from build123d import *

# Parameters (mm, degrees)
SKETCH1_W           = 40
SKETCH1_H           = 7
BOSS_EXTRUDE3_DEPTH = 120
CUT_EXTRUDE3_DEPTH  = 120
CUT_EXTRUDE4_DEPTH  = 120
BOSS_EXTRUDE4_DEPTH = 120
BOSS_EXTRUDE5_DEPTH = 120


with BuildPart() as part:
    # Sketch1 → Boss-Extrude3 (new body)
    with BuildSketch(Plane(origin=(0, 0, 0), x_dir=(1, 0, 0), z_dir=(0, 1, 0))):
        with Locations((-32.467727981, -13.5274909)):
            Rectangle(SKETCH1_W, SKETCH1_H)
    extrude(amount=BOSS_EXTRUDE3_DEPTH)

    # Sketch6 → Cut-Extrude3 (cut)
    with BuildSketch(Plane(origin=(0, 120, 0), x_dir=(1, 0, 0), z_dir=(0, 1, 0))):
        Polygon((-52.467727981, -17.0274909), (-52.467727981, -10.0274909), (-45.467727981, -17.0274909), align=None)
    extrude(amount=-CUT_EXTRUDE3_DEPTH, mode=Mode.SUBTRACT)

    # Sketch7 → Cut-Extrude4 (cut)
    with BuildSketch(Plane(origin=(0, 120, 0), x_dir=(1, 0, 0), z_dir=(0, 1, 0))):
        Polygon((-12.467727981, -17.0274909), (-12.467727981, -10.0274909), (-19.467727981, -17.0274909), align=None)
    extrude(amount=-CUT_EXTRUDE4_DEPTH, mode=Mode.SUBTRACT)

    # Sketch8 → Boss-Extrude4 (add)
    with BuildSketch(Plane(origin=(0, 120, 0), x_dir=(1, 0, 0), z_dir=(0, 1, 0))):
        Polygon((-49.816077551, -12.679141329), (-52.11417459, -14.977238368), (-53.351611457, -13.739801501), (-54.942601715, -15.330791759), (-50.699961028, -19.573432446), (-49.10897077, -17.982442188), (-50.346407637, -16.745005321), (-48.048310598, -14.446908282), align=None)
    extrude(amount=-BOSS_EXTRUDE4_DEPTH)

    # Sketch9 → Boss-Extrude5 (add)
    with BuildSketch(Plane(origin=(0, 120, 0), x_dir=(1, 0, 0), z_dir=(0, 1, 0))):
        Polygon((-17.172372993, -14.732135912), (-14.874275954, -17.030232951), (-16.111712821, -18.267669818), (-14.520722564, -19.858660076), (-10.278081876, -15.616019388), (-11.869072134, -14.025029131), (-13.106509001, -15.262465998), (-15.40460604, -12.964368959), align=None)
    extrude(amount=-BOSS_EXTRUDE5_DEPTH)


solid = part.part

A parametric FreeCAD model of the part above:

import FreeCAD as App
import Part
import Sketcher
from FreeCAD import Vector
Q = App.Units.Quantity


def add_polygon(sketch, points):
    """Adds a closed chain of lines whose ends are joined by coincident constraints."""
    first, n = sketch.GeometryCount, len(points)
    for a, b in zip(points, points[1:] + points[:1]):
        sketch.addGeometry(Part.LineSegment(App.Vector(*a, 0), App.Vector(*b, 0)), False)
    for i in range(n):
        sketch.addConstraint(Sketcher.Constraint("Coincident", first + i, 2, first + (i + 1) % n, 1))

doc = App.newDocument("Part")
body = doc.addObject("PartDesign::Body", "Body")

sketch1 = doc.addObject("Sketcher::SketchObject", "Sketch")
body.addObject(sketch1)
sketch1.AttachmentSupport = (doc.XZ_Plane, [""])
sketch1.MapMode = "FlatFace"
add_polygon(sketch1, [(-52, 10), (-52, 17), (-12, 17), (-12, 10)])
sketch1.addConstraint([
    Sketcher.Constraint("Vertical", 0),
    Sketcher.Constraint("Horizontal", 1),
    Sketcher.Constraint("Vertical", 2),
    Sketcher.Constraint("Horizontal", 3),
    Sketcher.Constraint("DistanceX", 1, 1, 1, 2, Q("40 mm")),
    Sketcher.Constraint("DistanceY", 0, 1, 0, 2, Q("7 mm")),
    Sketcher.Constraint("DistanceY", -1, 1, 0, 2, Q("17.027491 mm")),
    Sketcher.Constraint("DistanceX", 0, 2, -1, 1, Q("52.467728 mm")),
])
pad1 = doc.addObject("PartDesign::Pad", "Pad")
body.addObject(pad1)
pad1.Profile = sketch1
pad1.Length = 120
pad1.Reversed = True

sketch2 = doc.addObject("Sketcher::SketchObject", "Sketch001")
body.addObject(sketch2)
sketch2.AttachmentSupport = (doc.XZ_Plane, [""])
sketch2.MapMode = "FlatFace"
sketch2.AttachmentOffset = App.Placement(Vector(0, 0, -120), App.Rotation())
add_polygon(sketch2, [(-52, 10), (-52, 17), (-45, 17)])
sketch2.addConstraint([
    Sketcher.Constraint("Vertical", 0),
    Sketcher.Constraint("Horizontal", 1),
    Sketcher.Constraint("Equal", 1, 0),
    Sketcher.Constraint("DistanceX", 1, 1, 1, 2, Q("7 mm")),
    Sketcher.Constraint("DistanceY", -1, 1, 0, 2, Q("17.027491 mm")),
    Sketcher.Constraint("DistanceX", 0, 2, -1, 1, Q("52.467728 mm")),
])
pocket1 = doc.addObject("PartDesign::Pocket", "Pocket")
body.addObject(pocket1)
pocket1.Profile = sketch2
pocket1.Length = 120
pocket1.Reversed = True

sketch3 = doc.addObject("Sketcher::SketchObject", "Sketch002")
body.addObject(sketch3)
sketch3.AttachmentSupport = (doc.XZ_Plane, [""])
sketch3.MapMode = "FlatFace"
sketch3.AttachmentOffset = App.Placement(Vector(0, 0, -120), App.Rotation())
add_polygon(sketch3, [(-12, 17), (-12, 10), (-19, 17)])
sketch3.addConstraint([
    Sketcher.Constraint("Vertical", 0),
    Sketcher.Constraint("Horizontal", 2),
    Sketcher.Constraint("Equal", 2, 0),
    Sketcher.Constraint("DistanceX", 2, 1, 2, 2, Q("7 mm")),
    Sketcher.Constraint("DistanceY", -1, 1, 0, 2, Q("10.027491 mm")),
    Sketcher.Constraint("DistanceX", 0, 2, -1, 1, Q("12.467728 mm")),
])
pocket2 = doc.addObject("PartDesign::Pocket", "Pocket001")
body.addObject(pocket2)
pocket2.Profile = sketch3
pocket2.Length = 120
pocket2.Reversed = True

sketch4 = doc.addObject("Sketcher::SketchObject", "Sketch003")
body.addObject(sketch4)
sketch4.AttachmentSupport = (doc.XZ_Plane, [""])
sketch4.MapMode = "FlatFace"
sketch4.AttachmentOffset = App.Placement(Vector(0, 0, -120), App.Rotation())
add_polygon(sketch4, [(-49.8, 12.7), (-52.1, 15), (-53.4, 13.7), (-54.9, 15.3), (-50.7, 19.6), (-49.1, 18), (-50.3, 16.7), (-48, 14.4)])
sketch4.addConstraint([
    Sketcher.Constraint("Perpendicular", 0, 1),
    Sketcher.Constraint("Perpendicular", 1, 2),
    Sketcher.Constraint("Perpendicular", 2, 3),
    Sketcher.Constraint("Perpendicular", 3, 4),
    Sketcher.Constraint("Perpendicular", 4, 5),
    Sketcher.Constraint("Perpendicular", 5, 6),
    Sketcher.Constraint("Perpendicular", 6, 7),
    Sketcher.Constraint("Equal", 2, 4),
    Sketcher.Constraint("Equal", 1, 5),
    Sketcher.Constraint("Angle", 0, Q("135 deg")),
    Sketcher.Constraint("Distance", 3, Q("6 mm")),
    Sketcher.Constraint("Distance", 7, Q("2.5 mm")),
    Sketcher.Constraint("Distance", 0, Q("3.25 mm")),
    Sketcher.Constraint("Distance", 2, Q("2.25 mm")),
    Sketcher.Constraint("DistanceY", -1, 1, 1, 2, Q("13.739802 mm")),
    Sketcher.Constraint("DistanceX", 2, 2, -1, 1, Q("54.942602 mm")),
])
pad2 = doc.addObject("PartDesign::Pad", "Pad001")
body.addObject(pad2)
pad2.Profile = sketch4
pad2.Length = 120

sketch5 = doc.addObject("Sketcher::SketchObject", "Sketch004")
body.addObject(sketch5)
sketch5.AttachmentSupport = (doc.XZ_Plane, [""])
sketch5.MapMode = "FlatFace"
sketch5.AttachmentOffset = App.Placement(Vector(0, 0, -120), App.Rotation())
add_polygon(sketch5, [(-17.2, 14.7), (-14.9, 17), (-16.1, 18.3), (-14.5, 19.9), (-10.3, 15.6), (-11.9, 14), (-13.1, 15.3), (-15.4, 13)])
sketch5.addConstraint([
    Sketcher.Constraint("Perpendicular", 0, 1),
    Sketcher.Constraint("Perpendicular", 1, 2),
    Sketcher.Constraint("Perpendicular", 2, 3),
    Sketcher.Constraint("Perpendicular", 3, 4),
    Sketcher.Constraint("Perpendicular", 4, 5),
    Sketcher.Constraint("Perpendicular", 5, 6),
    Sketcher.Constraint("Perpendicular", 6, 7),
    Sketcher.Constraint("Equal", 2, 4),
    Sketcher.Constraint("Equal", 1, 5),
    Sketcher.Constraint("Angle", 0, Q("45 deg")),
    Sketcher.Constraint("Distance", 3, Q("6 mm")),
    Sketcher.Constraint("Distance", 7, Q("2.5 mm")),
    Sketcher.Constraint("Distance", 0, Q("3.25 mm")),
    Sketcher.Constraint("Distance", 2, Q("2.25 mm")),
    Sketcher.Constraint("DistanceY", -1, 1, 1, 2, Q("18.26767 mm")),
    Sketcher.Constraint("DistanceX", 3, 2, -1, 1, Q("10.278082 mm")),
])
pad3 = doc.addObject("PartDesign::Pad", "Pad002")
body.addObject(pad3)
pad3.Profile = sketch5
pad3.Length = 120

doc.recompute()
